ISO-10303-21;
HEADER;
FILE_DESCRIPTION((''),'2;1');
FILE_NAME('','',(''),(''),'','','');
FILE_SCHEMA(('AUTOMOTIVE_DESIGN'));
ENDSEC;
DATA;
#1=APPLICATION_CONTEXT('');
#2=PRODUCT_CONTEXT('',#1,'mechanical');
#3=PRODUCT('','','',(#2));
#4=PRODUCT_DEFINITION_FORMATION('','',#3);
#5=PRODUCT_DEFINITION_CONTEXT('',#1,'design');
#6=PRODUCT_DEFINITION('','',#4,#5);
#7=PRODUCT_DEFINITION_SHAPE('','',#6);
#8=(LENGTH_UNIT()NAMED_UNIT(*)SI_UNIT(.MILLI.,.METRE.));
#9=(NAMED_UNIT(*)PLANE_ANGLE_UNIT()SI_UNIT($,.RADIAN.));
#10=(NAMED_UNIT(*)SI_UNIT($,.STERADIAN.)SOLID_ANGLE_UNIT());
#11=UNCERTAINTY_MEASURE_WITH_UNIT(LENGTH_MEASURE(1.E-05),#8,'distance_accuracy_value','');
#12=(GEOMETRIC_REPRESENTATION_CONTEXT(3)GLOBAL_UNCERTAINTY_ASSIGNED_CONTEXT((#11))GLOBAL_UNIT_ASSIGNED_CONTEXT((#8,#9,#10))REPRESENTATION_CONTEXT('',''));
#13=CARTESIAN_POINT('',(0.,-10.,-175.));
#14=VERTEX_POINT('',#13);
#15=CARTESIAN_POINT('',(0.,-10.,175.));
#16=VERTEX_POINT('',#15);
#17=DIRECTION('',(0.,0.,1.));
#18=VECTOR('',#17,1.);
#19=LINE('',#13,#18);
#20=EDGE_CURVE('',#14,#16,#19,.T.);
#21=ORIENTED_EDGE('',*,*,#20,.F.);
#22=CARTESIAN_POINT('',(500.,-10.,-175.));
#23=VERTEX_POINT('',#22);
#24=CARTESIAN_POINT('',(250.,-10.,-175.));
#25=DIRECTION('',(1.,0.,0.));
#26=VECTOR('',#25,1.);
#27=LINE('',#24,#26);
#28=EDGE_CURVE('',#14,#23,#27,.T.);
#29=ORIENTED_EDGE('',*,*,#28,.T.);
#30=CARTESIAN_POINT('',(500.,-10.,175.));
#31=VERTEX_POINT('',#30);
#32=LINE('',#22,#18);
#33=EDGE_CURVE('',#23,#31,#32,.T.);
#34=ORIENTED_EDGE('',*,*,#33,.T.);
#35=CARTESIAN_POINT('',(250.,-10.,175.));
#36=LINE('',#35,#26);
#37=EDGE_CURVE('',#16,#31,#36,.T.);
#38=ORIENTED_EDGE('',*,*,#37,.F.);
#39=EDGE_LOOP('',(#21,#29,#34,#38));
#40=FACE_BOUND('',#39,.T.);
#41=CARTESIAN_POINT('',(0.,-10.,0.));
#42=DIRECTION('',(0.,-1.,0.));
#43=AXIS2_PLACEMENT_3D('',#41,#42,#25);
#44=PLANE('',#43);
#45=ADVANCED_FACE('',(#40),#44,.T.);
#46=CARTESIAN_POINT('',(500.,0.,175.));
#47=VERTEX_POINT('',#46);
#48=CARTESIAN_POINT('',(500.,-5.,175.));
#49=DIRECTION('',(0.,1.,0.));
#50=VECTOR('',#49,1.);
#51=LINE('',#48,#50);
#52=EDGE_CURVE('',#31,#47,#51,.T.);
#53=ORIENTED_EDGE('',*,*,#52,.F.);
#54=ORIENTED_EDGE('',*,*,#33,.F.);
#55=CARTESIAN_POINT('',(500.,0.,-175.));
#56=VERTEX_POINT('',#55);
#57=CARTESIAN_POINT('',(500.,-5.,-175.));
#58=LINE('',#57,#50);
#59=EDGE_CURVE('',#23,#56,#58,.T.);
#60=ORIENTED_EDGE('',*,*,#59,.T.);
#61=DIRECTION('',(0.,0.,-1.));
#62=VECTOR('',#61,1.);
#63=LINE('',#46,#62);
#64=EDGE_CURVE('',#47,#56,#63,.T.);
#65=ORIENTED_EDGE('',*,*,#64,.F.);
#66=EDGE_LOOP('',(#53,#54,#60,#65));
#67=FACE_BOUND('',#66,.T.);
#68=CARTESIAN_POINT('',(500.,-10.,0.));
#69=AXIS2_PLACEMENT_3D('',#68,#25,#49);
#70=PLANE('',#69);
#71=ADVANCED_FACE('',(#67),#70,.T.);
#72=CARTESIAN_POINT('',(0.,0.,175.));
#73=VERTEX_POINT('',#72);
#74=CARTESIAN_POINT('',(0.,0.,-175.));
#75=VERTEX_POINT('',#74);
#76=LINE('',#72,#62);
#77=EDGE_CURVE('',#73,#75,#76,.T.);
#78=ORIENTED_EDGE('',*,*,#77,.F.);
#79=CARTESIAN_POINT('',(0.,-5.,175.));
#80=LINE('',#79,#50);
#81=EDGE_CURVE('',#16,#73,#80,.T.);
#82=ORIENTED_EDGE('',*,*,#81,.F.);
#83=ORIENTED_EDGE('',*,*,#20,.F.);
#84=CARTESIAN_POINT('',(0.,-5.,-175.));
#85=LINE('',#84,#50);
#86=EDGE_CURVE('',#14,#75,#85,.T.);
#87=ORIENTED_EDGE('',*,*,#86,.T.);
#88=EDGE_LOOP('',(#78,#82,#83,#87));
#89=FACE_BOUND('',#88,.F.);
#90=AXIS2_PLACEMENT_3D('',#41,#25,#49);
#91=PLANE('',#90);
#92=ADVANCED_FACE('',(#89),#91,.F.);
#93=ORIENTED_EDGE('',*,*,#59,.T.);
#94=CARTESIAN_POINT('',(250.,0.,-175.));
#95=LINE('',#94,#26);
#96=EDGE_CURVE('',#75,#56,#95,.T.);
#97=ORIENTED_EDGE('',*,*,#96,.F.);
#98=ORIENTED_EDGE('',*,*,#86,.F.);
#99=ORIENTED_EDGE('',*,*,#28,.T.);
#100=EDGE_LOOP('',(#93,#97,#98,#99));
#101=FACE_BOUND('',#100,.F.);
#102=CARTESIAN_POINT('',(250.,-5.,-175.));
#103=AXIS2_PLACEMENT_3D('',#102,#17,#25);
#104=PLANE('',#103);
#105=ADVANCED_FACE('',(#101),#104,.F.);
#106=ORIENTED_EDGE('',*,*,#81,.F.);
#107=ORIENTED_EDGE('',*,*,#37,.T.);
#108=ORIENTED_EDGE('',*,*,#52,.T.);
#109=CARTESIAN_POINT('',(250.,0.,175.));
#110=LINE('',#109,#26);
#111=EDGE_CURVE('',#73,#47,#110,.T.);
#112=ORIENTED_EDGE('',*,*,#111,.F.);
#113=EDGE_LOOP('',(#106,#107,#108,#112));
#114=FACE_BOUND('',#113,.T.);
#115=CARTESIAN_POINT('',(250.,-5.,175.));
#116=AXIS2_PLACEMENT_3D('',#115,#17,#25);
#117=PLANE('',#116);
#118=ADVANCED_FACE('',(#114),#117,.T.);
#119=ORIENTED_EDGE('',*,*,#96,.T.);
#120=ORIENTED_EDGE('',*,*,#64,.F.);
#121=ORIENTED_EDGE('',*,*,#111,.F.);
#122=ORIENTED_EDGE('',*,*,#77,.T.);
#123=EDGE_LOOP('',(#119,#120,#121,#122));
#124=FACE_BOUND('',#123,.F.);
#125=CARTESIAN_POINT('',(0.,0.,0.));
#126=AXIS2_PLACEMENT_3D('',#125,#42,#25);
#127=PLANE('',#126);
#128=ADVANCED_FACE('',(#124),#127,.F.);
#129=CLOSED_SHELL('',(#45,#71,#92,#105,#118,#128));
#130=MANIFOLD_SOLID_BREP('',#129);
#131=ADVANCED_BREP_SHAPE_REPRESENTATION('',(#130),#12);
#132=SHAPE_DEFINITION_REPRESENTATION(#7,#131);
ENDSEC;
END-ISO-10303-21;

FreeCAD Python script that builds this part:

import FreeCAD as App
import Part
import Sketcher

doc = App.newDocument("Part")
body = doc.addObject("PartDesign::Body", "Body")

sketch1 = body.newObject("Sketcher::SketchObject", "Sketch")
sketch1.AttachmentSupport = (doc.getObject("XY_Plane"), [""])
sketch1.MapMode = "FlatFace"
sketch1.addGeometry([
    Part.LineSegment(App.Vector(0, 0, 0), App.Vector(0, -10, 0)),
    Part.LineSegment(App.Vector(0, -10, 0), App.Vector(500, -10, 0)),
    Part.LineSegment(App.Vector(500, -10, 0), App.Vector(500, 0, 0)),
    Part.LineSegment(App.Vector(500, 0, 0), App.Vector(0, 0, 0)),
], False)
sketch1.addConstraint([
    Sketcher.Constraint("Coincident", 0, 2, 1, 1),
    Sketcher.Constraint("Coincident", 1, 2, 2, 1),
    Sketcher.Constraint("Coincident", 2, 2, 3, 1),
    Sketcher.Constraint("Coincident", 3, 2, 0, 1),
    Sketcher.Constraint("Vertical", 0),
    Sketcher.Constraint("Horizontal", 1),
    Sketcher.Constraint("Vertical", 2),
    Sketcher.Constraint("Horizontal", 3),
    Sketcher.Constraint("Coincident", 3, 2, -1, 1),
    Sketcher.Constraint("DistanceX", 1, 1, 1, 2, 500.0),
    Sketcher.Constraint("DistanceY", 0, 2, 0, 1, 10.0),
])
pad1 = body.newObject("PartDesign::Pad", "Pad")
pad1.Profile = sketch1
pad1.Length = 350
pad1.Midplane = True

doc.recompute()
